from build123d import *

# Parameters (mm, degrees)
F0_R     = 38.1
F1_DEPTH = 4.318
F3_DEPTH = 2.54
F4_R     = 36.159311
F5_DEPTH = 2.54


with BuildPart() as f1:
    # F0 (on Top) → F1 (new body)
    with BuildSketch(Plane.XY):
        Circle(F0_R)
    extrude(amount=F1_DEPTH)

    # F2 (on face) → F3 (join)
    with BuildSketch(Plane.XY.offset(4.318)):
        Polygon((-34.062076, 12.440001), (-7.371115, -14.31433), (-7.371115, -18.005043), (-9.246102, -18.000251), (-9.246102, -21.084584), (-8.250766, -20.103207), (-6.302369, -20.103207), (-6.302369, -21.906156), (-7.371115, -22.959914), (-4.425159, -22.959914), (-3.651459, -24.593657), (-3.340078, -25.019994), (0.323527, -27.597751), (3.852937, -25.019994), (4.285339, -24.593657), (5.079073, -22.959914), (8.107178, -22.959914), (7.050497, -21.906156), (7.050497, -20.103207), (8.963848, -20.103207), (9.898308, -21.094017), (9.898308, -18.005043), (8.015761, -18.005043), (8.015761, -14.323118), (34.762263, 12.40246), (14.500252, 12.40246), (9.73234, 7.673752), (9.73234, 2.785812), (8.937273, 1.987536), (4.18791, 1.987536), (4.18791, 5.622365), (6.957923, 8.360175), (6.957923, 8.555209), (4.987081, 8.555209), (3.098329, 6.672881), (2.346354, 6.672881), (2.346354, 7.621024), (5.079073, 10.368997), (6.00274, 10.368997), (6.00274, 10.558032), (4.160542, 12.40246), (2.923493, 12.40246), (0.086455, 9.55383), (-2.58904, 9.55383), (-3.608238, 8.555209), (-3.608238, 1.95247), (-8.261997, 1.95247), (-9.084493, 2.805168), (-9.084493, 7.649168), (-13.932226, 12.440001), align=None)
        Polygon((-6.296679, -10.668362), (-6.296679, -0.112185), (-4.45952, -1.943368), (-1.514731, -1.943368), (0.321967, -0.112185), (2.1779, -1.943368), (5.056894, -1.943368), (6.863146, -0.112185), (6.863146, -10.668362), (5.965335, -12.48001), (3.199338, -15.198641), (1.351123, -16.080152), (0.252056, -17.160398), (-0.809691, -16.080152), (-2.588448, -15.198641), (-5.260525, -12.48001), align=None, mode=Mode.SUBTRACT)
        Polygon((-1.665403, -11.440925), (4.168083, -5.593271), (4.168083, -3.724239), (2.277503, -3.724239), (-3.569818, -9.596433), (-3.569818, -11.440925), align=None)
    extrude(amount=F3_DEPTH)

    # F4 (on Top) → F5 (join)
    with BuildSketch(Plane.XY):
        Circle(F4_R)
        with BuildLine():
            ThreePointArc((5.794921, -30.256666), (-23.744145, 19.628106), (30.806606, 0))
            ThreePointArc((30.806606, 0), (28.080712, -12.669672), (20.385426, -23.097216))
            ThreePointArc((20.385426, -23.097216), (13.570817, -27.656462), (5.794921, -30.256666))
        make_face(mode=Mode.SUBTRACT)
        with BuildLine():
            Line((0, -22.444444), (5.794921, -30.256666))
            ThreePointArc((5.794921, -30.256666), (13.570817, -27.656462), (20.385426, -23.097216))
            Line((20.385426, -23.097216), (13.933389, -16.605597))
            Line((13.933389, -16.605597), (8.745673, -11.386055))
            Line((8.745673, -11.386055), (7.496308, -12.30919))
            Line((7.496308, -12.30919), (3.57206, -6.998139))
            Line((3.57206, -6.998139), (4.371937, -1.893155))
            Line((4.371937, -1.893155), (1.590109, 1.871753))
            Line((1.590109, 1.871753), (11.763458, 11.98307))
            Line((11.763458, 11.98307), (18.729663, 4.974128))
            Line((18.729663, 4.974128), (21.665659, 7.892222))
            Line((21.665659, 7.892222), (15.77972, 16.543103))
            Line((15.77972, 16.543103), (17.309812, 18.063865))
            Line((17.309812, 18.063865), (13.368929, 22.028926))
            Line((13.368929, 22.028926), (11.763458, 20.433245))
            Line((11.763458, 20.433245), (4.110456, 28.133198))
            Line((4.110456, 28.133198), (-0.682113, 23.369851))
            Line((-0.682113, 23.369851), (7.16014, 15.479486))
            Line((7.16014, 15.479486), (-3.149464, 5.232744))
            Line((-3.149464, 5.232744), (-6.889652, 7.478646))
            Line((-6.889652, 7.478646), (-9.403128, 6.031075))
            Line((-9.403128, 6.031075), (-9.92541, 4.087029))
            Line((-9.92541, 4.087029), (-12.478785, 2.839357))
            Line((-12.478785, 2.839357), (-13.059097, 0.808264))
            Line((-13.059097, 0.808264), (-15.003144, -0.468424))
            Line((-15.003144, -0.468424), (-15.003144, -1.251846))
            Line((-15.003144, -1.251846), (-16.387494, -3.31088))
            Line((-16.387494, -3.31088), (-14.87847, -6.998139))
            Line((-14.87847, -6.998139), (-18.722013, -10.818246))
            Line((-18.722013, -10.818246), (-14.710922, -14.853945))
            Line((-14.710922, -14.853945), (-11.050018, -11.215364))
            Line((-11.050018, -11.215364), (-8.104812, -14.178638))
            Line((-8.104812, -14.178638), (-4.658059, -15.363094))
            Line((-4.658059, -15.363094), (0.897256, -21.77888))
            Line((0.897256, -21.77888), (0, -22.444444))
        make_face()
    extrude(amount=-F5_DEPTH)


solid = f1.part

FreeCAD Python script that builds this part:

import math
import FreeCAD as App
import Part
import Sketcher
from FreeCAD import Vector
Q = App.Units.Quantity

doc = App.newDocument("Part")
body = doc.addObject("PartDesign::Body", "Body")

# Sketch on XY plane
sketch1 = body.newObject("Sketcher::SketchObject", "Sketch")
sketch1.AttachmentSupport = (doc.getObject("XY_Plane"), [""])
sketch1.MapMode = "FlatFace"
sketch1.addGeometry(Part.Circle(Vector(0, 0, 0), Vector(0, 0, 1), 38.1), False)
sketch1.addConstraint([
    Sketcher.Constraint("Coincident", 0, 3, -1, 1),
    Sketcher.Constraint("Diameter", 0, Q("3 in")),
])
pad1 = body.newObject("PartDesign::Pad", "Pad")
pad1.Profile = sketch1
pad1.Length = Q("0.17 in")

# Sketch on XY plane
sketch2 = body.newObject("Sketcher::SketchObject", "Sketch001")
sketch2.AttachmentSupport = (doc.getObject("XY_Plane"), [""])
sketch2.MapMode = "FlatFace"
sketch2.AttachmentOffset = App.Placement(Vector(0, 0, 0.17 * 25.4), App.Rotation())
sketch2.addGeometry([
    Part.LineSegment(Vector(-34.062076, 12.440001, 0), Vector(-7.371115, -14.31433, 0)),  # 0
    Part.LineSegment(Vector(-7.371115, -14.31433, 0), Vector(-7.371115, -18.005043, 0)),  # 1
    Part.LineSegment(Vector(-7.371115, -18.005043, 0), Vector(-9.246102, -18.000251, 0)),  # 2
    Part.LineSegment(Vector(-9.246102, -18.000251, 0), Vector(-9.246102, -21.084584, 0)),  # 3
    Part.LineSegment(Vector(-9.246102, -21.084584, 0), Vector(-8.250766, -20.103207, 0)),  # 4
    Part.LineSegment(Vector(-8.250766, -20.103207, 0), Vector(-6.302369, -20.103207, 0)),  # 5
    Part.LineSegment(Vector(-6.302369, -20.103207, 0), Vector(-6.302369, -21.906156, 0)),  # 6
    Part.LineSegment(Vector(-6.302369, -21.906156, 0), Vector(-7.371115, -22.959914, 0)),  # 7
    Part.LineSegment(Vector(-7.371115, -22.959914, 0), Vector(-4.425159, -22.959914, 0)),  # 8
    Part.LineSegment(Vector(-4.425159, -22.959914, 0), Vector(-3.651459, -24.593657, 0)),  # 9
    Part.LineSegment(Vector(-3.651459, -24.593657, 0), Vector(-3.340078, -25.019994, 0)),  # 10
    Part.LineSegment(Vector(-3.340078, -25.019994, 0), Vector(0.323527, -27.597751, 0)),  # 11
    Part.LineSegment(Vector(0.323527, -27.597751, 0), Vector(3.852937, -25.019994, 0)),  # 12
    Part.LineSegment(Vector(3.852937, -25.019994, 0), Vector(4.285339, -24.593657, 0)),  # 13
    Part.LineSegment(Vector(4.285339, -24.593657, 0), Vector(5.079073, -22.959914, 0)),  # 14
    Part.LineSegment(Vector(5.079073, -22.959914, 0), Vector(8.107178, -22.959914, 0)),  # 15
    Part.LineSegment(Vector(8.107178, -22.959914, 0), Vector(7.050497, -21.906156, 0)),  # 16
    Part.LineSegment(Vector(7.050497, -21.906156, 0), Vector(7.050497, -20.103207, 0)),  # 17
    Part.LineSegment(Vector(7.050497, -20.103207, 0), Vector(8.963848, -20.103207, 0)),  # 18
    Part.LineSegment(Vector(8.963848, -20.103207, 0), Vector(9.898308, -21.094017, 0)),  # 19
    Part.LineSegment(Vector(9.898308, -21.094017, 0), Vector(9.898308, -18.005043, 0)),  # 20
    Part.LineSegment(Vector(9.898308, -18.005043, 0), Vector(8.015761, -18.005043, 0)),  # 21
    Part.LineSegment(Vector(8.015761, -18.005043, 0), Vector(8.015761, -14.323118, 0)),  # 22
    Part.LineSegment(Vector(8.015761, -14.323118, 0), Vector(34.762263, 12.40246, 0)),  # 23
    Part.LineSegment(Vector(34.762263, 12.40246, 0), Vector(14.500252, 12.40246, 0)),  # 24
    Part.LineSegment(Vector(14.500252, 12.40246, 0), Vector(9.73234, 7.673752, 0)),  # 25
    Part.LineSegment(Vector(9.73234, 7.673752, 0), Vector(9.73234, 2.785812, 0)),  # 26
    Part.LineSegment(Vector(9.73234, 2.785812, 0), Vector(8.937273, 1.987536, 0)),  # 27
    Part.LineSegment(Vector(8.937273, 1.987536, 0), Vector(4.18791, 1.987536, 0)),  # 28
    Part.LineSegment(Vector(4.18791, 1.987536, 0), Vector(4.18791, 5.622365, 0)),  # 29
    Part.LineSegment(Vector(4.18791, 5.622365, 0), Vector(6.957923, 8.360175, 0)),  # 30
    Part.LineSegment(Vector(6.957923, 8.360175, 0), Vector(6.957923, 8.555209, 0)),  # 31
    Part.LineSegment(Vector(6.957923, 8.555209, 0), Vector(4.987081, 8.555209, 0)),  # 32
    Part.LineSegment(Vector(4.987081, 8.555209, 0), Vector(3.098329, 6.672881, 0)),  # 33
    Part.LineSegment(Vector(3.098329, 6.672881, 0), Vector(2.346354, 6.672881, 0)),  # 34
    Part.LineSegment(Vector(2.346354, 6.672881, 0), Vector(2.346354, 7.621024, 0)),  # 35
    Part.LineSegment(Vector(2.346354, 7.621024, 0), Vector(5.079073, 10.368997, 0)),  # 36
    Part.LineSegment(Vector(5.079073, 10.368997, 0), Vector(6.00274, 10.368997, 0)),  # 37
    Part.LineSegment(Vector(6.00274, 10.368997, 0), Vector(6.00274, 10.558032, 0)),  # 38
    Part.LineSegment(Vector(6.00274, 10.558032, 0), Vector(4.160542, 12.40246, 0)),  # 39
    Part.LineSegment(Vector(4.160542, 12.40246, 0), Vector(2.923493, 12.40246, 0)),  # 40
    Part.LineSegment(Vector(2.923493, 12.40246, 0), Vector(0.086455, 9.55383, 0)),  # 41
    Part.LineSegment(Vector(0.086455, 9.55383, 0), Vector(-2.58904, 9.55383, 0)),  # 42
    Part.LineSegment(Vector(-2.58904, 9.55383, 0), Vector(-3.608238, 8.555209, 0)),  # 43
    Part.LineSegment(Vector(-3.608238, 8.555209, 0), Vector(-3.608238, 1.95247, 0)),  # 44
    Part.LineSegment(Vector(-3.608238, 1.95247, 0), Vector(-8.261997, 1.95247, 0)),  # 45
    Part.LineSegment(Vector(-8.261997, 1.95247, 0), Vector(-9.084493, 2.805168, 0)),  # 46
    Part.LineSegment(Vector(-9.084493, 2.805168, 0), Vector(-9.084493, 7.649168, 0)),  # 47
    Part.LineSegment(Vector(-9.084493, 7.649168, 0), Vector(-13.932226, 12.440001, 0)),  # 48
    Part.LineSegment(Vector(-13.932226, 12.440001, 0), Vector(-34.062076, 12.440001, 0)),  # 49
    Part.LineSegment(Vector(-5.260525, -12.48001, 0), Vector(-6.296679, -10.668362, 0)),  # 50
    Part.LineSegment(Vector(-6.296679, -10.668362, 0), Vector(-6.296679, -0.112185, 0)),  # 51
    Part.LineSegment(Vector(-6.296679, -0.112185, 0), Vector(-4.45952, -1.943368, 0)),  # 52
    Part.LineSegment(Vector(-4.45952, -1.943368, 0), Vector(-1.514731, -1.943368, 0)),  # 53
    Part.LineSegment(Vector(-1.514731, -1.943368, 0), Vector(0.321967, -0.112185, 0)),  # 54
    Part.LineSegment(Vector(0.321967, -0.112185, 0), Vector(2.1779, -1.943368, 0)),  # 55
    Part.LineSegment(Vector(2.1779, -1.943368, 0), Vector(5.056894, -1.943368, 0)),  # 56
    Part.LineSegment(Vector(5.056894, -1.943368, 0), Vector(6.863146, -0.112185, 0)),  # 57
    Part.LineSegment(Vector(6.863146, -0.112185, 0), Vector(6.863146, -10.668362, 0)),  # 58
    Part.LineSegment(Vector(6.863146, -10.668362, 0), Vector(5.965335, -12.48001, 0)),  # 59
    Part.LineSegment(Vector(5.965335, -12.48001, 0), Vector(3.199338, -15.198641, 0)),  # 60
    Part.LineSegment(Vector(3.199338, -15.198641, 0), Vector(1.351123, -16.080152, 0)),  # 61
    Part.LineSegment(Vector(1.351123, -16.080152, 0), Vector(0.252056, -17.160398, 0)),  # 62
    Part.LineSegment(Vector(0.252056, -17.160398, 0), Vector(-0.809691, -16.080152, 0)),  # 63
    Part.LineSegment(Vector(-0.809691, -16.080152, 0), Vector(-2.588448, -15.198641, 0)),  # 64
    Part.LineSegment(Vector(-2.588448, -15.198641, 0), Vector(-5.260525, -12.48001, 0)),  # 65
    Part.LineSegment(Vector(-1.665403, -11.440925, 0), Vector(4.168083, -5.593271, 0)),  # 66
    Part.LineSegment(Vector(4.168083, -5.593271, 0), Vector(4.168083, -3.724239, 0)),  # 67
    Part.LineSegment(Vector(4.168083, -3.724239, 0), Vector(2.277503, -3.724239, 0)),  # 68
    Part.LineSegment(Vector(2.277503, -3.724239, 0), Vector(-3.569818, -9.596433, 0)),  # 69
    Part.LineSegment(Vector(-3.569818, -9.596433, 0), Vector(-3.569818, -11.440925, 0)),  # 70
    Part.LineSegment(Vector(-3.569818, -11.440925, 0), Vector(-1.665403, -11.440925, 0)),  # 71
], False)
sketch2.addConstraint([
    Sketcher.Constraint("Coincident", 0, 2, 1, 1),
    Sketcher.Constraint("Coincident", 1, 2, 2, 1),
    Sketcher.Constraint("Coincident", 2, 2, 3, 1),
    Sketcher.Constraint("Coincident", 3, 2, 4, 1),
    Sketcher.Constraint("Coincident", 4, 2, 5, 1),
    Sketcher.Constraint("Coincident", 5, 2, 6, 1),
    Sketcher.Constraint("Coincident", 6, 2, 7, 1),
    Sketcher.Constraint("Coincident", 7, 2, 8, 1),
    Sketcher.Constraint("Coincident", 8, 2, 9, 1),
    Sketcher.Constraint("Coincident", 9, 2, 10, 1),
    Sketcher.Constraint("Coincident", 10, 2, 11, 1),
    Sketcher.Constraint("Coincident", 11, 2, 12, 1),
    Sketcher.Constraint("Coincident", 12, 2, 13, 1),
    Sketcher.Constraint("Coincident", 13, 2, 14, 1),
    Sketcher.Constraint("Coincident", 14, 2, 15, 1),
    Sketcher.Constraint("Coincident", 15, 2, 16, 1),
    Sketcher.Constraint("Coincident", 16, 2, 17, 1),
    Sketcher.Constraint("Coincident", 17, 2, 18, 1),
    Sketcher.Constraint("Coincident", 18, 2, 19, 1),
    Sketcher.Constraint("Coincident", 19, 2, 20, 1),
    Sketcher.Constraint("Coincident", 20, 2, 21, 1),
    Sketcher.Constraint("Coincident", 21, 2, 22, 1),
    Sketcher.Constraint("Coincident", 22, 2, 23, 1),
    Sketcher.Constraint("Coincident", 23, 2, 24, 1),
    Sketcher.Constraint("Coincident", 24, 2, 25, 1),
    Sketcher.Constraint("Coincident", 25, 2, 26, 1),
    Sketcher.Constraint("Coincident", 26, 2, 27, 1),
    Sketcher.Constraint("Coincident", 27, 2, 28, 1),
    Sketcher.Constraint("Coincident", 28, 2, 29, 1),
    Sketcher.Constraint("Coincident", 29, 2, 30, 1),
    Sketcher.Constraint("Coincident", 30, 2, 31, 1),
    Sketcher.Constraint("Coincident", 31, 2, 32, 1),
    Sketcher.Constraint("Coincident", 32, 2, 33, 1),
    Sketcher.Constraint("Coincident", 33, 2, 34, 1),
    Sketcher.Constraint("Coincident", 34, 2, 35, 1),
    Sketcher.Constraint("Coincident", 35, 2, 36, 1),
    Sketcher.Constraint("Coincident", 36, 2, 37, 1),
    Sketcher.Constraint("Coincident", 37, 2, 38, 1),
    Sketcher.Constraint("Coincident", 38, 2, 39, 1),
    Sketcher.Constraint("Coincident", 39, 2, 40, 1),
    Sketcher.Constraint("Coincident", 40, 2, 41, 1),
    Sketcher.Constraint("Coincident", 41, 2, 42, 1),
    Sketcher.Constraint("Coincident", 42, 2, 43, 1),
    Sketcher.Constraint("Coincident", 43, 2, 44, 1),
    Sketcher.Constraint("Coincident", 44, 2, 45, 1),
    Sketcher.Constraint("Coincident", 45, 2, 46, 1),
    Sketcher.Constraint("Coincident", 46, 2, 47, 1),
    Sketcher.Constraint("Coincident", 47, 2, 48, 1),
    Sketcher.Constraint("Coincident", 48, 2, 49, 1),
    Sketcher.Constraint("Coincident", 49, 2, 0, 1),
    Sketcher.Constraint("Coincident", 50, 2, 51, 1),
    Sketcher.Constraint("Coincident", 51, 2, 52, 1),
    Sketcher.Constraint("Coincident", 52, 2, 53, 1),
    Sketcher.Constraint("Coincident", 53, 2, 54, 1),
    Sketcher.Constraint("Coincident", 54, 2, 55, 1),
    Sketcher.Constraint("Coincident", 55, 2, 56, 1),
    Sketcher.Constraint("Coincident", 56, 2, 57, 1),
    Sketcher.Constraint("Coincident", 57, 2, 58, 1),
    Sketcher.Constraint("Coincident", 58, 2, 59, 1),
    Sketcher.Constraint("Coincident", 59, 2, 60, 1),
    Sketcher.Constraint("Coincident", 60, 2, 61, 1),
    Sketcher.Constraint("Coincident", 61, 2, 62, 1),
    Sketcher.Constraint("Coincident", 62, 2, 63, 1),
    Sketcher.Constraint("Coincident", 63, 2, 64, 1),
    Sketcher.Constraint("Coincident", 64, 2, 65, 1),
    Sketcher.Constraint("Coincident", 65, 2, 50, 1),
    Sketcher.Constraint("Coincident", 66, 2, 67, 1),
    Sketcher.Constraint("Coincident", 67, 2, 68, 1),
    Sketcher.Constraint("Coincident", 68, 2, 69, 1),
    Sketcher.Constraint("Coincident", 69, 2, 70, 1),
    Sketcher.Constraint("Coincident", 70, 2, 71, 1),
    Sketcher.Constraint("Coincident", 71, 2, 66, 1),
    Sketcher.Constraint("Vertical", 1),
    Sketcher.Constraint("Vertical", 3),
    Sketcher.Constraint("Horizontal", 5),
    Sketcher.Constraint("Vertical", 6),
    Sketcher.Constraint("Horizontal", 8),
    Sketcher.Constraint("Horizontal", 15),
    Sketcher.Constraint("Vertical", 17),
    Sketcher.Constraint("Horizontal", 18),
    Sketcher.Constraint("Vertical", 20),
    Sketcher.Constraint("Horizontal", 21),
    Sketcher.Constraint("Vertical", 22),
    Sketcher.Constraint("Horizontal", 24),
    Sketcher.Constraint("Vertical", 26),
    Sketcher.Constraint("Horizontal", 28),
    Sketcher.Constraint("Vertical", 29),
    Sketcher.Constraint("Vertical", 31),
    Sketcher.Constraint("Horizontal", 32),
    Sketcher.Constraint("Horizontal", 34),
    Sketcher.Constraint("Vertical", 35),
    Sketcher.Constraint("Horizontal", 37),
    Sketcher.Constraint("Vertical", 38),
    Sketcher.Constraint("Horizontal", 40),
    Sketcher.Constraint("Horizontal", 42),
    Sketcher.Constraint("Vertical", 44),
    Sketcher.Constraint("Horizontal", 45),
    Sketcher.Constraint("Vertical", 47),
    Sketcher.Constraint("Horizontal", 49),
    Sketcher.Constraint("Vertical", 51),
    Sketcher.Constraint("Horizontal", 53),
    Sketcher.Constraint("Horizontal", 56),
    Sketcher.Constraint("Vertical", 58),
    Sketcher.Constraint("Vertical", 67),
    Sketcher.Constraint("Horizontal", 68),
    Sketcher.Constraint("Vertical", 70),
    Sketcher.Constraint("Horizontal", 71),
    Sketcher.Constraint("DistanceY", 47, 1, 47, 2, 4.844),
    Sketcher.Constraint("Distance", 11, 4.479602),
    Sketcher.Constraint("DistanceX", 18, 1, 18, 2, 1.913351),
    Sketcher.Constraint("DistanceX", 24, 2, 24, 1, 20.262011),
    Sketcher.Constraint("DistanceX", 40, 2, 40, 1, 1.237049),
    Sketcher.Constraint("DistanceX", 45, 2, 45, 1, 4.653759),
    Sketcher.Constraint("DistanceX", 49, 2, 49, 1, 20.12985),
    Sketcher.Constraint("DistanceX", 53, 1, 53, 2, 2.944789),
    Sketcher.Constraint("DistanceX", 68, 2, 68, 1, 1.89058),
    Sketcher.Constraint("DistanceY", 6, 2, 6, 1, 1.802949),
    Sketcher.Constraint("DistanceY", 17, 1, 17, 2, 1.802949),
    Sketcher.Constraint("DistanceY", 26, 2, 26, 1, 4.88794),
    Sketcher.Constraint("DistanceY", 29, 1, 29, 2, 3.634829),
    Sketcher.Constraint("DistanceY", 44, 2, 44, 1, 6.602739),
    Sketcher.Constraint("DistanceY", 67, 1, 67, 2, 1.869032),
    Sketcher.Constraint("DistanceY", -1, 1, 48, 2, 12.440001),
    Sketcher.Constraint("DistanceX", -1, 1, 55, 2, 2.1779),
    Sketcher.Constraint("DistanceY", 62, 2, -1, 1, 17.160398),
    Sketcher.Constraint("Distance", 10, 0.527941),
    Sketcher.Constraint("Distance", 14, 1.816351),
    Sketcher.Constraint("Distance", 25, 6.715182),
    Sketcher.Constraint("Distance", 33, 2.66656),
    Sketcher.Constraint("Distance", 36, 3.875449),
    Sketcher.Constraint("Distance", 39, 2.606839),
    Sketcher.Constraint("Distance", 61, 2.047672),
    Sketcher.Constraint("Distance", 65, 3.811948),
    Sketcher.Constraint("Distance", 66, 8.259819),
    Sketcher.Constraint("DistanceX", 5, 1, 5, 2, 1.948397),
    Sketcher.Constraint("DistanceX", 8, 1, 8, 2, 2.945956),
    Sketcher.Constraint("DistanceX", 15, 1, 15, 2, 3.028105),
    Sketcher.Constraint("DistanceX", 21, 2, 21, 1, 1.882547),
    Sketcher.Constraint("DistanceX", 28, 2, 28, 1, 4.749363),
    Sketcher.Constraint("DistanceX", 32, 2, 32, 1, 1.970842),
    Sketcher.Constraint("DistanceX", 34, 2, 34, 1, 0.751975),
    Sketcher.Constraint("DistanceX", 37, 1, 37, 2, 0.923667),
    Sketcher.Constraint("DistanceX", 42, 2, 42, 1, 2.675495),
    Sketcher.Constraint("DistanceX", 56, 1, 56, 2, 2.878994),
    Sketcher.Constraint("DistanceX", 71, 1, 71, 2, 1.904415),
    Sketcher.Constraint("DistanceY", 1, 2, 1, 1, 3.690713),
    Sketcher.Constraint("DistanceY", 3, 2, 3, 1, 3.084333),
    Sketcher.Constraint("DistanceY", 20, 1, 20, 2, 3.088974),
    Sketcher.Constraint("DistanceY", 22, 1, 22, 2, 3.681925),
    Sketcher.Constraint("DistanceY", 31, 1, 31, 2, 0.195034),
    Sketcher.Constraint("DistanceY", 35, 1, 35, 2, 0.948143),
    Sketcher.Constraint("DistanceY", 38, 1, 38, 2, 0.189035),
    Sketcher.Constraint("DistanceY", 51, 1, 51, 2, 10.556177),
    Sketcher.Constraint("DistanceY", 58, 2, 58, 1, 10.556177),
    Sketcher.Constraint("DistanceY", 70, 2, 70, 1, 1.844492),
    Sketcher.Constraint("DistanceY", 0, 2, -1, 1, 14.31433),
    Sketcher.Constraint("DistanceY", 2, 2, -1, 1, 18.000251),
    Sketcher.Constraint("DistanceX", 5, 2, -1, 1, 6.302369),
    Sketcher.Constraint("DistanceX", 8, 2, -1, 1, 4.425159),
    Sketcher.Constraint("DistanceX", 9, 2, -1, 1, 3.651459),
    Sketcher.Constraint("DistanceX", 10, 2, -1, 1, 3.340078),
    Sketcher.Constraint("DistanceY", 11, 2, -1, 1, 27.597751),
    Sketcher.Constraint("DistanceX", -1, 1, 13, 2, 4.285339),
    Sketcher.Constraint("DistanceX", -1, 1, 21, 2, 8.015761),
    Sketcher.Constraint("DistanceY", -1, 1, 23, 2, 12.40246),
    Sketcher.Constraint("DistanceX", -1, 1, 25, 2, 9.73234),
    Sketcher.Constraint("DistanceY", -1, 1, 26, 2, 2.785812),
    Sketcher.Constraint("DistanceX", -1, 1, 28, 2, 4.18791),
    Sketcher.Constraint("DistanceY", -1, 1, 31, 2, 8.555209),
    Sketcher.Constraint("DistanceX", -1, 1, 32, 2, 4.987081),
    Sketcher.Constraint("DistanceX", -1, 1, 33, 2, 3.098329),
    Sketcher.Constraint("DistanceX", -1, 1, 37, 2, 6.00274),
    Sketcher.Constraint("DistanceY", -1, 1, 39, 2, 12.40246),
    Sketcher.Constraint("DistanceY", -1, 1, 41, 2, 9.55383),
    Sketcher.Constraint("DistanceX", 42, 2, -1, 1, 2.58904),
    Sketcher.Constraint("DistanceX", 43, 2, -1, 1, 3.608238),
    Sketcher.Constraint("DistanceY", -1, 1, 43, 2, 8.555209),
    Sketcher.Constraint("DistanceY", -1, 1, 46, 2, 2.805168),
    Sketcher.Constraint("DistanceX", 50, 2, -1, 1, 6.296679),
    Sketcher.Constraint("DistanceX", 52, 2, -1, 1, 4.45952),
    Sketcher.Constraint("DistanceY", 59, 2, -1, 1, 12.48001),
    Sketcher.Constraint("DistanceX", -1, 1, 60, 2, 3.199338),
    Sketcher.Constraint("DistanceY", 60, 2, -1, 1, 15.198641),
    Sketcher.Constraint("DistanceY", 61, 2, -1, 1, 16.080152),
    Sketcher.Constraint("DistanceX", 63, 2, -1, 1, 0.809691),
    Sketcher.Constraint("DistanceY", 63, 2, -1, 1, 16.080152),
    Sketcher.Constraint("DistanceX", 64, 2, -1, 1, 2.588448),
    Sketcher.Constraint("DistanceY", 64, 2, -1, 1, 15.198641),
    Sketcher.Constraint("DistanceY", 65, 2, -1, 1, 12.48001),
    Sketcher.Constraint("DistanceY", 66, 2, -1, 1, 5.593271),
    Sketcher.Constraint("DistanceX", 69, 2, -1, 1, 3.569818),
    Sketcher.Constraint("Distance", 0, 37.791555),
    Sketcher.Constraint("Distance", 2, 1.874993),
    Sketcher.Constraint("Distance", 4, 1.397782),
    Sketcher.Constraint("Distance", 7, 1.500874),
    Sketcher.Constraint("Distance", 9, 1.807686),
    Sketcher.Constraint("Distance", 12, 4.370534),
    Sketcher.Constraint("Distance", 13, 0.607235),
    Sketcher.Constraint("Distance", 16, 1.492307),
    Sketcher.Constraint("Distance", 19, 1.361954),
    Sketcher.Constraint("Distance", 23, 37.810473),
    Sketcher.Constraint("Distance", 27, 1.126666),
    Sketcher.Constraint("Distance", 46, 1.184734),
    Sketcher.Constraint("Distance", 48, 6.815614),
    Sketcher.Constraint("Distance", 50, 2.087027),
    Sketcher.Constraint("Distance", 52, 2.593913),
    Sketcher.Constraint("Distance", 54, 2.593586),
    Sketcher.Constraint("Distance", 55, 2.607243),
    Sketcher.Constraint("Distance", 57, 2.572115),
    Sketcher.Constraint("Distance", 59, 2.021913),
    Sketcher.Constraint("Distance", 60, 3.878362),
    Sketcher.Constraint("Distance", 62, 1.541064),
    Sketcher.Constraint("DistanceX", -1, 1, 12, 2, 3.852937),
    Sketcher.Constraint("DistanceX", -1, 1, 14, 2, 5.079073),
    Sketcher.Constraint("DistanceX", -1, 1, 54, 2, 0.321967),
    Sketcher.Constraint("DistanceX", -1, 1, 66, 2, 4.168083),
])
pad2 = body.newObject("PartDesign::Pad", "Pad001")
pad2.Profile = sketch2
pad2.Length = Q("0.1 in")

# Sketch on XY plane
sketch3 = body.newObject("Sketcher::SketchObject", "Sketch002")
sketch3.AttachmentSupport = (doc.getObject("XY_Plane"), [""])
sketch3.MapMode = "FlatFace"
sketch3.addGeometry([
    Part.Circle(Vector(0, 0, 0), Vector(0, 0, 1), 36.159311),  # 0
    Part.ArcOfCircle(Part.Circle(Vector(0, 0, 0), Vector(0, 0, 1), 30.806606), math.radians(-48.568622), math.radians(0)),  # 1
    Part.LineSegment(Vector(20.385426, -23.097216, 0), Vector(13.933389, -16.605597, 0)),  # 2
    Part.LineSegment(Vector(13.933389, -16.605597, 0), Vector(8.745673, -11.386055, 0)),  # 3
    Part.LineSegment(Vector(8.745673, -11.386055, 0), Vector(7.496308, -12.30919, 0)),  # 4
    Part.LineSegment(Vector(7.496308, -12.30919, 0), Vector(3.57206, -6.998139, 0)),  # 5
    Part.LineSegment(Vector(3.57206, -6.998139, 0), Vector(4.371937, -1.893155, 0)),  # 6
    Part.LineSegment(Vector(4.371937, -1.893155, 0), Vector(1.590109, 1.871753, 0)),  # 7
    Part.LineSegment(Vector(1.590109, 1.871753, 0), Vector(11.763458, 11.98307, 0)),  # 8
    Part.LineSegment(Vector(11.763458, 11.98307, 0), Vector(18.729663, 4.974128, 0)),  # 9
    Part.LineSegment(Vector(18.729663, 4.974128, 0), Vector(21.665659, 7.892222, 0)),  # 10
    Part.LineSegment(Vector(21.665659, 7.892222, 0), Vector(15.77972, 16.543103, 0)),  # 11
    Part.LineSegment(Vector(15.77972, 16.543103, 0), Vector(17.309812, 18.063865, 0)),  # 12
    Part.LineSegment(Vector(17.309812, 18.063865, 0), Vector(13.368929, 22.028926, 0)),  # 13
    Part.LineSegment(Vector(13.368929, 22.028926, 0), Vector(11.763458, 20.433245, 0)),  # 14
    Part.LineSegment(Vector(11.763458, 20.433245, 0), Vector(4.110456, 28.133198, 0)),  # 15
    Part.LineSegment(Vector(4.110456, 28.133198, 0), Vector(-0.682113, 23.369851, 0)),  # 16
    Part.LineSegment(Vector(-0.682113, 23.369851, 0), Vector(7.16014, 15.479486, 0)),  # 17
    Part.LineSegment(Vector(7.16014, 15.479486, 0), Vector(-3.149464, 5.232744, 0)),  # 18
    Part.LineSegment(Vector(-3.149464, 5.232744, 0), Vector(-6.889652, 7.478646, 0)),  # 19
    Part.LineSegment(Vector(-6.889652, 7.478646, 0), Vector(-9.403128, 6.031075, 0)),  # 20
    Part.LineSegment(Vector(-9.403128, 6.031075, 0), Vector(-9.92541, 4.087029, 0)),  # 21
    Part.LineSegment(Vector(-9.92541, 4.087029, 0), Vector(-12.478785, 2.839357, 0)),  # 22
    Part.LineSegment(Vector(-12.478785, 2.839357, 0), Vector(-13.059097, 0.808264, 0)),  # 23
    Part.LineSegment(Vector(-13.059097, 0.808264, 0), Vector(-15.003144, -0.468424, 0)),  # 24
    Part.LineSegment(Vector(-15.003144, -0.468424, 0), Vector(-15.003144, -1.251846, 0)),  # 25
    Part.LineSegment(Vector(-15.003144, -1.251846, 0), Vector(-16.387494, -3.31088, 0)),  # 26
    Part.LineSegment(Vector(-16.387494, -3.31088, 0), Vector(-14.87847, -6.998139, 0)),  # 27
    Part.LineSegment(Vector(-14.87847, -6.998139, 0), Vector(-18.722013, -10.818246, 0)),  # 28
    Part.LineSegment(Vector(-18.722013, -10.818246, 0), Vector(-14.710922, -14.853945, 0)),  # 29
    Part.LineSegment(Vector(-14.710922, -14.853945, 0), Vector(-11.050018, -11.215364, 0)),  # 30
    Part.LineSegment(Vector(-11.050018, -11.215364, 0), Vector(-8.104812, -14.178638, 0)),  # 31
    Part.LineSegment(Vector(-8.104812, -14.178638, 0), Vector(-4.658059, -15.363094, 0)),  # 32
    Part.LineSegment(Vector(-4.658059, -15.363094, 0), Vector(0.897256, -21.77888, 0)),  # 33
    Part.LineSegment(Vector(0.897256, -21.77888, 0), Vector(0, -22.444444, 0)),  # 34
    Part.LineSegment(Vector(0, -22.444444, 0), Vector(5.794921, -30.256666, 0)),  # 35
    Part.ArcOfCircle(Part.Circle(Vector(0, 0, 0), Vector(0, 0, 1), 30.806606), math.radians(-0.000001), math.radians(280.842299)),  # 36
], False)
sketch3.addConstraint([
    Sketcher.Constraint("Coincident", 1, 1, 2, 1),
    Sketcher.Constraint("Coincident", 2, 2, 3, 1),
    Sketcher.Constraint("Coincident", 3, 2, 4, 1),
    Sketcher.Constraint("Coincident", 4, 2, 5, 1),
    Sketcher.Constraint("Coincident", 5, 2, 6, 1),
    Sketcher.Constraint("Coincident", 6, 2, 7, 1),
    Sketcher.Constraint("Coincident", 7, 2, 8, 1),
    Sketcher.Constraint("Coincident", 8, 2, 9, 1),
    Sketcher.Constraint("Coincident", 9, 2, 10, 1),
    Sketcher.Constraint("Coincident", 10, 2, 11, 1),
    Sketcher.Constraint("Coincident", 11, 2, 12, 1),
    Sketcher.Constraint("Coincident", 12, 2, 13, 1),
    Sketcher.Constraint("Coincident", 13, 2, 14, 1),
    Sketcher.Constraint("Coincident", 14, 2, 15, 1),
    Sketcher.Constraint("Coincident", 15, 2, 16, 1),
    Sketcher.Constraint("Coincident", 16, 2, 17, 1),
    Sketcher.Constraint("Coincident", 17, 2, 18, 1),
    Sketcher.Constraint("Coincident", 18, 2, 19, 1),
    Sketcher.Constraint("Coincident", 19, 2, 20, 1),
    Sketcher.Constraint("Coincident", 20, 2, 21, 1),
    Sketcher.Constraint("Coincident", 21, 2, 22, 1),
    Sketcher.Constraint("Coincident", 22, 2, 23, 1),
    Sketcher.Constraint("Coincident", 23, 2, 24, 1),
    Sketcher.Constraint("Coincident", 24, 2, 25, 1),
    Sketcher.Constraint("Coincident", 25, 2, 26, 1),
    Sketcher.Constraint("Coincident", 26, 2, 27, 1),
    Sketcher.Constraint("Coincident", 27, 2, 28, 1),
    Sketcher.Constraint("Coincident", 28, 2, 29, 1),
    Sketcher.Constraint("Coincident", 29, 2, 30, 1),
    Sketcher.Constraint("Coincident", 30, 2, 31, 1),
    Sketcher.Constraint("Coincident", 31, 2, 32, 1),
    Sketcher.Constraint("Coincident", 32, 2, 33, 1),
    Sketcher.Constraint("Coincident", 33, 2, 34, 1),
    Sketcher.Constraint("Coincident", 34, 2, 35, 1),
    Sketcher.Constraint("Coincident", 35, 2, 36, 2),
    Sketcher.Constraint("Tangent", 36, 1, 1, 2),
    Sketcher.Constraint("Vertical", 25),
    Sketcher.Constraint("Coincident", 0, 3, -1, 1),
    Sketcher.Constraint("Coincident", 1, 3, -1, 1),
    Sketcher.Constraint("Equal", 1, 36),
    Sketcher.Constraint("PointOnObject", 34, 2, -2),
    Sketcher.Constraint("PointOnObject", 36, 1, -1),
    Sketcher.Constraint("Parallel", 2, 3),
    Sketcher.Constraint("Perpendicular", 4, 5),
    Sketcher.Constraint("Parallel", 5, 7),
    Sketcher.Constraint("Perpendicular", 3, 8),
    Sketcher.Constraint("Perpendicular", 8, 9),
    Sketcher.Constraint("Perpendicular", 9, 10),
    Sketcher.Constraint("Parallel", 10, 12),
    Sketcher.Constraint("Perpendicular", 12, 13),
    Sketcher.Constraint("Perpendicular", 13, 14),
    Sketcher.Constraint("Perpendicular", 14, 15),
    Sketcher.Constraint("Perpendicular", 15, 16),
    Sketcher.Constraint("Perpendicular", 16, 17),
    Sketcher.Constraint("Perpendicular", 17, 18),
    Sketcher.Constraint("Parallel", 18, 28),
    Sketcher.Constraint("Perpendicular", 28, 29),
    Sketcher.Constraint("Perpendicular", 29, 30),
    Sketcher.Constraint("Perpendicular", 30, 31),
    Sketcher.Constraint("Perpendicular", 34, 35),
    Sketcher.Constraint("Horizontal", 5, 2, 27, 2),
    Sketcher.Constraint("Vertical", 8, 2, 14, 2),
    Sketcher.Constraint("DistanceX", 28, 2, 31, 2, Q("0.418 in")),
    Sketcher.Constraint("Diameter", 0, 72.318622),
    Sketcher.Constraint("Radius", 1, 30.806606),
    Sketcher.Constraint("DistanceY", 30, 2, 26, 2, Q("0.3112002 in")),
    Sketcher.Constraint("Distance", 18, 14.5356),
    Sketcher.Constraint("DistanceY", -1, 1, 15, 2, 28.133198),
    Sketcher.Constraint("DistanceY", 3, 2, 6, 2, 9.4929),
    Sketcher.Constraint("DistanceX", 8, 2, 10, 2, 9.902201),
    Sketcher.Constraint("DistanceX", 18, 2, 6, 2, 7.521401),
    Sketcher.Constraint("DistanceY", 6, 2, 18, 2, 7.125899),
    Sketcher.Constraint("DistanceY", 24, 2, 20, 2, 6.499499),
    Sketcher.Constraint("DistanceY", 28, 2, 25, 2, 9.5664),
    Sketcher.Constraint("DistanceY", 29, 2, 28, 2, 4.035699),
    Sketcher.Constraint("DistanceY", 31, 2, 27, 2, 7.180499),
    Sketcher.Constraint("Distance", 2, 9.15259),
    Sketcher.Constraint("Distance", 5, 6.603559),
    Sketcher.Constraint("Distance", 6, 5.167269),
    Sketcher.Constraint("Distance", 8, 14.343492),
    Sketcher.Constraint("Distance", 12, 2.15729),
    Sketcher.Constraint("Distance", 15, 10.856229),
    Sketcher.Constraint("Distance", 20, 2.900521),
    Sketcher.Constraint("Distance", 21, 2.012981),
    Sketcher.Constraint("Distance", 23, 2.112369),
    Sketcher.Constraint("Distance", 24, 2.32578),
    Sketcher.Constraint("Distance", 26, 2.481138),
    Sketcher.Constraint("Distance", 30, 5.161539),
    Sketcher.Constraint("Distance", 32, 3.644591),
    Sketcher.Constraint("Distance", 34, 1.117159),
    Sketcher.Constraint("DistanceY", 25, 2, 25, 1, 0.783422),
    Sketcher.Constraint("DistanceX", -1, 1, 2, 2, 13.933389),
    Sketcher.Constraint("DistanceY", 4, 2, -1, 1, 12.30919),
    Sketcher.Constraint("DistanceX", -1, 1, 5, 2, 3.57206),
    Sketcher.Constraint("DistanceY", 5, 2, -1, 1, 6.998139),
    Sketcher.Constraint("DistanceX", -1, 1, 7, 2, 1.590109),
    Sketcher.Constraint("DistanceY", -1, 1, 8, 2, 11.98307),
    Sketcher.Constraint("DistanceY", -1, 1, 9, 2, 4.974128),
    Sketcher.Constraint("DistanceX", -1, 1, 11, 2, 15.77972),
    Sketcher.Constraint("DistanceX", -1, 1, 13, 2, 13.368929),
    Sketcher.Constraint("DistanceX", 21, 2, -1, 1, 9.92541),
    Sketcher.Constraint("DistanceY", -1, 1, 21, 2, 4.087029),
    Sketcher.Constraint("DistanceX", 27, 2, -1, 1, 14.87847),
    Sketcher.Constraint("DistanceX", 32, 2, -1, 1, 4.658059),
    Sketcher.Constraint("DistanceY", 33, 2, -1, 1, 21.77888),
    Sketcher.Constraint("DistanceX", -1, 1, 35, 2, 5.794921),
    Sketcher.Constraint("DistanceX", 19, 2, 7, 2, 8.479761),
    Sketcher.Constraint("DistanceY", 22, 2, 20, 2, 3.191718),
    Sketcher.Constraint("DistanceX", 22, 2, 18, 2, 9.329321),
    Sketcher.Constraint("DistanceX", 23, 2, 22, 2, 0.580312),
])
pad3 = body.newObject("PartDesign::Pad", "Pad002")
pad3.Profile = sketch3
pad3.Length = Q("0.1 in")
pad3.Reversed = True

doc.recompute()
